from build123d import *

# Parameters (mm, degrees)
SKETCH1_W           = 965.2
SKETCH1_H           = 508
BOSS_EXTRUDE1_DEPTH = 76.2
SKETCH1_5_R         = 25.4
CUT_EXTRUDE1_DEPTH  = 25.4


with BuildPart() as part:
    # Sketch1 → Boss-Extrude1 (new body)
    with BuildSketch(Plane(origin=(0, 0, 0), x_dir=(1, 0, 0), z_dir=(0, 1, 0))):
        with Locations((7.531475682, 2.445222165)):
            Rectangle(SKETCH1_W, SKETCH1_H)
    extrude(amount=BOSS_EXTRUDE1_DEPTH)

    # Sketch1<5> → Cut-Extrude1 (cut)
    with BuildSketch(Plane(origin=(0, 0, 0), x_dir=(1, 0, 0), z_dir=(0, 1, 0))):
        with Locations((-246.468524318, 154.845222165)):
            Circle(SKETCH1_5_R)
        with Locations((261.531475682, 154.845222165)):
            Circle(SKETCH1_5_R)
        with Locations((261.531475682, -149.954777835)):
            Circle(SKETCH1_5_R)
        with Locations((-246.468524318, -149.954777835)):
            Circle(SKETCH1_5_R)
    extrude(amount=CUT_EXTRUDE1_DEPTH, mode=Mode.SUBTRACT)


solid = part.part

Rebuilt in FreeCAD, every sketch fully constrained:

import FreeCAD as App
import Part
import Sketcher
Q = App.Units.Quantity

doc = App.newDocument("Part")
body = doc.addObject("PartDesign::Body", "Body")

# Sketch on XZ plane
sketch1 = doc.addObject("Sketcher::SketchObject", "Sketch")
body.addObject(sketch1)
sketch1.AttachmentSupport = (doc.XZ_Plane, [""])
sketch1.MapMode = "FlatFace"
sketch1.addGeometry(Part.LineSegment(App.Vector(-475.068524, -256.445222, 0), App.Vector(-475.068524, 251.554778, 0)), False)
sketch1.addGeometry(Part.LineSegment(App.Vector(-475.068524, 251.554778, 0), App.Vector(490.131476, 251.554778, 0)), False)
sketch1.addGeometry(Part.LineSegment(App.Vector(490.131476, 251.554778, 0), App.Vector(490.131476, -256.445222, 0)), False)
sketch1.addGeometry(Part.LineSegment(App.Vector(490.131476, -256.445222, 0), App.Vector(-475.068524, -256.445222, 0)), False)
sketch1.addConstraint(Sketcher.Constraint("Coincident", 0, 2, 1, 1))
sketch1.addConstraint(Sketcher.Constraint("Coincident", 1, 2, 2, 1))
sketch1.addConstraint(Sketcher.Constraint("Coincident", 2, 2, 3, 1))
sketch1.addConstraint(Sketcher.Constraint("Coincident", 3, 2, 0, 1))
sketch1.addConstraint(Sketcher.Constraint("Vertical", 0))
sketch1.addConstraint(Sketcher.Constraint("Horizontal", 1))
sketch1.addConstraint(Sketcher.Constraint("Vertical", 2))
sketch1.addConstraint(Sketcher.Constraint("Horizontal", 3))
sketch1.addConstraint(Sketcher.Constraint("DistanceX", 1, 1, 1, 2, Q("38 in")))
sketch1.addConstraint(Sketcher.Constraint("DistanceY", 0, 1, 0, 2, Q("20 in")))
sketch1.addConstraint(Sketcher.Constraint("DistanceX", 0, 2, -1, 1, 475.068524))
sketch1.addConstraint(Sketcher.Constraint("DistanceY", -1, 1, 0, 2, 251.554778))
pad1 = doc.addObject("PartDesign::Pad", "Pad")
body.addObject(pad1)
pad1.Profile = sketch1
pad1.Length = Q("3 in")
pad1.Reversed = True

# Sketch on XZ plane
sketch2 = doc.addObject("Sketcher::SketchObject", "Sketch001")
body.addObject(sketch2)
sketch2.AttachmentSupport = (doc.XZ_Plane, [""])
sketch2.MapMode = "FlatFace"
sketch2.addGeometry(Part.Circle(App.Vector(-246.468524, -154.845222, 0), App.Vector(0, 0, 1), 25.4), False)
sketch2.addGeometry(Part.Circle(App.Vector(261.531476, -154.845222, 0), App.Vector(0, 0, 1), 25.4), False)
sketch2.addGeometry(Part.Circle(App.Vector(261.531476, 149.954778, 0), App.Vector(0, 0, 1), 25.4), False)
sketch2.addGeometry(Part.Circle(App.Vector(-246.468524, 149.954778, 0), App.Vector(0, 0, 1), 25.4), False)
sketch2.addConstraint(Sketcher.Constraint("Equal", 0, 1))
sketch2.addConstraint(Sketcher.Constraint("Equal", 1, 2))
sketch2.addConstraint(Sketcher.Constraint("Equal", 2, 3))
sketch2.addConstraint(Sketcher.Constraint("Horizontal", 0, 3, 1, 3))
sketch2.addConstraint(Sketcher.Constraint("Horizontal", 2, 3, 3, 3))
sketch2.addConstraint(Sketcher.Constraint("Vertical", 1, 3, 2, 3))
sketch2.addConstraint(Sketcher.Constraint("Vertical", 0, 3, 3, 3))
sketch2.addConstraint(Sketcher.Constraint("Diameter", 0, Q("2 in")))
sketch2.addConstraint(Sketcher.Constraint("DistanceX", 0, 3, 1, 3, Q("20 in")))
sketch2.addConstraint(Sketcher.Constraint("DistanceY", 1, 3, 2, 3, Q("12 in")))
sketch2.addConstraint(Sketcher.Constraint("DistanceX", 0, 3, -1, 1, 246.468524))
sketch2.addConstraint(Sketcher.Constraint("DistanceY", 0, 3, -1, 1, 154.845222))
pocket1 = doc.addObject("PartDesign::Pocket", "Pocket")
body.addObject(pocket1)
pocket1.Profile = sketch2
pocket1.Length = Q("1 in")

doc.recompute()
